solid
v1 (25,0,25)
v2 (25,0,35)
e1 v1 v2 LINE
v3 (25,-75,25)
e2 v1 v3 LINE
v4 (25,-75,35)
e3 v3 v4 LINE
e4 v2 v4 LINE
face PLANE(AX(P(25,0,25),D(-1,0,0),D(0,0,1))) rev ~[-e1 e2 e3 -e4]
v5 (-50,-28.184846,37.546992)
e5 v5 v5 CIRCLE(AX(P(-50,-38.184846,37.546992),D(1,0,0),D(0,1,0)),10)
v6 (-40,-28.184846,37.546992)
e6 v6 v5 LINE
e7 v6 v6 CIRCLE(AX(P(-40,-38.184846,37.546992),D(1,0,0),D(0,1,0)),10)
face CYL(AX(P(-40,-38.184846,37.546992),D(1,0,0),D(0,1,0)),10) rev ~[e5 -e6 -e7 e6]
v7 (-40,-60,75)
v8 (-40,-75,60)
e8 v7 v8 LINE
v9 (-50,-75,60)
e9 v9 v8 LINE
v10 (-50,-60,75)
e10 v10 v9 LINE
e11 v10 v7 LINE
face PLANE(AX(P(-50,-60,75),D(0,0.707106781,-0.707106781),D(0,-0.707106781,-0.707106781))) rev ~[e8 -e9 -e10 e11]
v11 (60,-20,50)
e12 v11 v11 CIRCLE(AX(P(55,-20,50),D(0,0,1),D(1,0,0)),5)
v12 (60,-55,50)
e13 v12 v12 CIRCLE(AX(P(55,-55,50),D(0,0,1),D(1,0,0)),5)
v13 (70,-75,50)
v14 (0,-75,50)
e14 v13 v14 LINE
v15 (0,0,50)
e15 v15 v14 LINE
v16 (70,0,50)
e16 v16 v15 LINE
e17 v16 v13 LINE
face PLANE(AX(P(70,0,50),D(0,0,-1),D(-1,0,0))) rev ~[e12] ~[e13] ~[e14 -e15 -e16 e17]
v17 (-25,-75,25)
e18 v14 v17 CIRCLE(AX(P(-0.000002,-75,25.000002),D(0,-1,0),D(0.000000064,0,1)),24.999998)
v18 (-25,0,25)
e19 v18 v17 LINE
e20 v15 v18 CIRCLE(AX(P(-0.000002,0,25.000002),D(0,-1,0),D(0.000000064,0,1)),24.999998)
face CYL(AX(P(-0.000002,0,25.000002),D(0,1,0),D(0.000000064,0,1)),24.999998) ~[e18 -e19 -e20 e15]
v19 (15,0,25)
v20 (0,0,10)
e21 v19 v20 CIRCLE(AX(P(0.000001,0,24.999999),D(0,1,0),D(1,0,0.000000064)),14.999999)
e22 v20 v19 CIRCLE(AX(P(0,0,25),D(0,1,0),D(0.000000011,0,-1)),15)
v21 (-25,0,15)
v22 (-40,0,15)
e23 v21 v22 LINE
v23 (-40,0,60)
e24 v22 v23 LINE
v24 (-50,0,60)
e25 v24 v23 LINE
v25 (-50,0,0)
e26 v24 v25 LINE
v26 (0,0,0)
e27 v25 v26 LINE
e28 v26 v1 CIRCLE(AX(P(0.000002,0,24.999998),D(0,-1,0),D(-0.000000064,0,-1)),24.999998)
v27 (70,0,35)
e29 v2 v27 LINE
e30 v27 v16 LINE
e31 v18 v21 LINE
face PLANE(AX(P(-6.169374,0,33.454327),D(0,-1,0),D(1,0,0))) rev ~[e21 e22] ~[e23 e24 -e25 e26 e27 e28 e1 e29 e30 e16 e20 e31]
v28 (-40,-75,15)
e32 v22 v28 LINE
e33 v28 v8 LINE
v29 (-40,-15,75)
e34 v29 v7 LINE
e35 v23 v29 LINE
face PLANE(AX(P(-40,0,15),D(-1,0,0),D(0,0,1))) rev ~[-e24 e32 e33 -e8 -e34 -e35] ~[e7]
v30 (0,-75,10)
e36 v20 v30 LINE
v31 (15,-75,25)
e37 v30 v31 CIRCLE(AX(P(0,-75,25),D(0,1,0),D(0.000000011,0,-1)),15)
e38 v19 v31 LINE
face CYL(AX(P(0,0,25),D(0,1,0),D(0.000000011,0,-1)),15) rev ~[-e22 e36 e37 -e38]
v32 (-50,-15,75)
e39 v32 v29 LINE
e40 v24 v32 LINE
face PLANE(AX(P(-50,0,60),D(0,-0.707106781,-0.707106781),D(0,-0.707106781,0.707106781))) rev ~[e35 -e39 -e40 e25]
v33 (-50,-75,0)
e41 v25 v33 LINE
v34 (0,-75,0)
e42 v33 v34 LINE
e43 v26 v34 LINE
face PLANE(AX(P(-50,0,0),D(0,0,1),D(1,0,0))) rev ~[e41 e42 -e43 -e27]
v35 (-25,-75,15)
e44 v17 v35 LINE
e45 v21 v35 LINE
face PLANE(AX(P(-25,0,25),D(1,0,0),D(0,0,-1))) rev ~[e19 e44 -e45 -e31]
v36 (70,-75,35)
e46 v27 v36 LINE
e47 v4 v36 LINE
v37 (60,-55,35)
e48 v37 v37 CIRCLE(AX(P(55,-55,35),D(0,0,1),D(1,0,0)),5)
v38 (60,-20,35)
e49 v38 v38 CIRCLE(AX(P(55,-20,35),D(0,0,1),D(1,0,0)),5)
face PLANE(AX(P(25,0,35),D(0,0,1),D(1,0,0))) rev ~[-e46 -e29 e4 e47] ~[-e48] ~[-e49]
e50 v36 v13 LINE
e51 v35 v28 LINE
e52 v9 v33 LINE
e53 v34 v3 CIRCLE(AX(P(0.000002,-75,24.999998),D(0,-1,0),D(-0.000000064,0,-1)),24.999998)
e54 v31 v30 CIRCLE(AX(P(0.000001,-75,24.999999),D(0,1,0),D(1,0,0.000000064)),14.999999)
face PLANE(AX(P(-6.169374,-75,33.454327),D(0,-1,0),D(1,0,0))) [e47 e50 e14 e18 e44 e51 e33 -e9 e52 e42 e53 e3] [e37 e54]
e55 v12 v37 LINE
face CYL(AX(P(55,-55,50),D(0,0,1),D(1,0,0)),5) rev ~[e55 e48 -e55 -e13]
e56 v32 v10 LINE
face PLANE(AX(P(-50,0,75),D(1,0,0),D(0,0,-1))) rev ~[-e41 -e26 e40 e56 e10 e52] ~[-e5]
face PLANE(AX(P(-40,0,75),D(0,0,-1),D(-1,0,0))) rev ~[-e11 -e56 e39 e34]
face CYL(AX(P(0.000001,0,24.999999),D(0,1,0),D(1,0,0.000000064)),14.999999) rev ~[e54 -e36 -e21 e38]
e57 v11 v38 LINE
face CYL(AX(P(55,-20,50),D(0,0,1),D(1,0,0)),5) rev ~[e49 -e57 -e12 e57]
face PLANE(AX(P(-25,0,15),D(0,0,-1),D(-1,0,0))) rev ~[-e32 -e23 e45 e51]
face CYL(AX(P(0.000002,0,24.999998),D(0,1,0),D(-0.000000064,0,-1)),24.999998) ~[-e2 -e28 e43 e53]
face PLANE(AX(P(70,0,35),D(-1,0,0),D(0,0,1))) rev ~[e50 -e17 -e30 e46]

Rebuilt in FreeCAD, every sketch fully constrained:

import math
import FreeCAD as App
import Part
import Sketcher


def add_polygon(sketch, points):
    """Adds a closed chain of lines whose ends are joined by coincident constraints."""
    first, n = sketch.GeometryCount, len(points)
    for a, b in zip(points, points[1:] + points[:1]):
        sketch.addGeometry(Part.LineSegment(App.Vector(*a, 0), App.Vector(*b, 0)), False)
    for i in range(n):
        sketch.addConstraint(Sketcher.Constraint("Coincident", first + i, 2, first + (i + 1) % n, 1))

doc = App.newDocument("Part")
body = doc.addObject("PartDesign::Body", "Body")

# Sketch on XZ plane
sketch1 = body.newObject("Sketcher::SketchObject", "Sketch")
sketch1.AttachmentSupport = (doc.getObject("XZ_Plane"), [""])
sketch1.MapMode = "FlatFace"
sketch1.addGeometry(Part.LineSegment(App.Vector(-50, 0, 0), App.Vector(0, 0, 0)), False)
sketch1.addGeometry(Part.ArcOfCircle(Part.Circle(App.Vector(0, 25, 0), App.Vector(0, 0, 1), 25), math.radians(-90), math.radians(0)), False)
sketch1.addGeometry(Part.LineSegment(App.Vector(25, 25, 0), App.Vector(25, 35, 0)), False)
sketch1.addGeometry(Part.LineSegment(App.Vector(25, 35, 0), App.Vector(70, 35, 0)), False)
sketch1.addGeometry(Part.LineSegment(App.Vector(70, 35, 0), App.Vector(70, 50, 0)), False)
sketch1.addGeometry(Part.LineSegment(App.Vector(70, 50, 0), App.Vector(0, 50, 0)), False)
sketch1.addGeometry(Part.ArcOfCircle(Part.Circle(App.Vector(0, 25, 0), App.Vector(0, 0, 1), 25), math.radians(90), math.radians(180)), False)
sketch1.addGeometry(Part.LineSegment(App.Vector(-25, 25, 0), App.Vector(-25, 15, 0)), False)
sketch1.addGeometry(Part.LineSegment(App.Vector(-25, 15, 0), App.Vector(-40, 15, 0)), False)
sketch1.addGeometry(Part.LineSegment(App.Vector(-40, 15, 0), App.Vector(-40, 75, 0)), False)
sketch1.addGeometry(Part.LineSegment(App.Vector(-40, 75, 0), App.Vector(-50, 75, 0)), False)
sketch1.addGeometry(Part.LineSegment(App.Vector(-50, 75, 0), App.Vector(-50, 0, 0)), False)
sketch1.addGeometry(Part.ArcOfCircle(Part.Circle(App.Vector(0, 25, 0), App.Vector(0, 0, 1), 15), math.radians(-90), math.radians(0)), False)
sketch1.addGeometry(Part.ArcOfCircle(Part.Circle(App.Vector(0, 25, 0), App.Vector(0, 0, 1), 15), math.radians(0), math.radians(270)), False)
sketch1.addConstraint(Sketcher.Constraint("Tangent", 0, 2, 1, 1))
sketch1.addConstraint(Sketcher.Constraint("Tangent", 1, 2, 2, 1))
sketch1.addConstraint(Sketcher.Constraint("Coincident", 2, 2, 3, 1))
sketch1.addConstraint(Sketcher.Constraint("Coincident", 3, 2, 4, 1))
sketch1.addConstraint(Sketcher.Constraint("Coincident", 4, 2, 5, 1))
sketch1.addConstraint(Sketcher.Constraint("Tangent", 5, 2, 6, 1))
sketch1.addConstraint(Sketcher.Constraint("Tangent", 6, 2, 7, 1))
sketch1.addConstraint(Sketcher.Constraint("Coincident", 7, 2, 8, 1))
sketch1.addConstraint(Sketcher.Constraint("Coincident", 8, 2, 9, 1))
sketch1.addConstraint(Sketcher.Constraint("Coincident", 9, 2, 10, 1))
sketch1.addConstraint(Sketcher.Constraint("Coincident", 10, 2, 11, 1))
sketch1.addConstraint(Sketcher.Constraint("Coincident", 11, 2, 0, 1))
sketch1.addConstraint(Sketcher.Constraint("Tangent", 12, 1, 13, 2))
sketch1.addConstraint(Sketcher.Constraint("Coincident", 13, 1, 12, 2))
sketch1.addConstraint(Sketcher.Constraint("Horizontal", 0))
sketch1.addConstraint(Sketcher.Constraint("Vertical", 2))
sketch1.addConstraint(Sketcher.Constraint("Horizontal", 3))
sketch1.addConstraint(Sketcher.Constraint("Vertical", 4))
sketch1.addConstraint(Sketcher.Constraint("Horizontal", 5))
sketch1.addConstraint(Sketcher.Constraint("Vertical", 7))
sketch1.addConstraint(Sketcher.Constraint("Horizontal", 8))
sketch1.addConstraint(Sketcher.Constraint("Vertical", 9))
sketch1.addConstraint(Sketcher.Constraint("Horizontal", 10))
sketch1.addConstraint(Sketcher.Constraint("Vertical", 11))
sketch1.addConstraint(Sketcher.Constraint("Coincident", 0, 2, -1, 1))
sketch1.addConstraint(Sketcher.Constraint("Coincident", 6, 3, 1, 3))
sketch1.addConstraint(Sketcher.Constraint("Coincident", 12, 3, 1, 3))
sketch1.addConstraint(Sketcher.Constraint("Equal", 1, 6))
sketch1.addConstraint(Sketcher.Constraint("PointOnObject", 12, 1, -2))
sketch1.addConstraint(Sketcher.Constraint("Horizontal", 6, 2, 13, 1))
sketch1.addConstraint(Sketcher.Constraint("Equal", 10, 2))
sketch1.addConstraint(Sketcher.Constraint("Equal", 8, 4))
sketch1.addConstraint(Sketcher.Constraint("Equal", 2, 7))
sketch1.addConstraint(Sketcher.Constraint("Radius", 1, 24.999998))
sketch1.addConstraint(Sketcher.Constraint("Radius", 12, 14.999999))
sketch1.addConstraint(Sketcher.Constraint("DistanceX", 3, 1, 3, 2, 45.0))
sketch1.addConstraint(Sketcher.Constraint("DistanceX", 8, 2, 8, 1, 15.0))
sketch1.addConstraint(Sketcher.Constraint("DistanceY", 9, 1, 9, 2, 60.0))
pad1 = body.newObject("PartDesign::Pad", "Pad")
pad1.Profile = sketch1
pad1.Length = 75

# Sketch on XY plane
sketch2 = body.newObject("Sketcher::SketchObject", "Sketch001")
sketch2.AttachmentSupport = (doc.getObject("XY_Plane"), [""])
sketch2.MapMode = "FlatFace"
sketch2.AttachmentOffset = App.Placement(App.Vector(0, 0, 50), App.Rotation())
sketch2.addGeometry(Part.Circle(App.Vector(55, -20, 0), App.Vector(0, 0, 1), 5), False)
sketch2.addGeometry(Part.Circle(App.Vector(55, -55, 0), App.Vector(0, 0, 1), 5), False)
sketch2.addConstraint(Sketcher.Constraint("Equal", 0, 1))
sketch2.addConstraint(Sketcher.Constraint("Vertical", 0, 3, 1, 3))
sketch2.addConstraint(Sketcher.Constraint("Diameter", 0, 10.0))
sketch2.addConstraint(Sketcher.Constraint("DistanceX", -1, 1, 0, 3, 55.0))
sketch2.addConstraint(Sketcher.Constraint("DistanceY", 0, 3, -1, 1, 20.0))
sketch2.addConstraint(Sketcher.Constraint("DistanceY", 1, 3, -1, 1, 55.0))
pocket1 = body.newObject("PartDesign::Pocket", "Pocket")
pocket1.Profile = sketch2
pocket1.Length = 25

# Sketch on YZ plane
sketch3 = body.newObject("Sketcher::SketchObject", "Sketch002")
sketch3.AttachmentSupport = (doc.getObject("YZ_Plane"), [""])
sketch3.MapMode = "FlatFace"
sketch3.AttachmentOffset = App.Placement(App.Vector(0, 0, -50), App.Rotation())
add_polygon(sketch3, [(0, 60), (-15, 75), (0, 75)])  # lines 0-2
add_polygon(sketch3, [(-75, 75), (-60, 75), (-75, 60)])  # lines 3-5
sketch3.addConstraint(Sketcher.Constraint("Horizontal", 1))
sketch3.addConstraint(Sketcher.Constraint("Vertical", 2))
sketch3.addConstraint(Sketcher.Constraint("Horizontal", 3))
sketch3.addConstraint(Sketcher.Constraint("Vertical", 5))
sketch3.addConstraint(Sketcher.Constraint("PointOnObject", 1, 2, -2))
sketch3.addConstraint(Sketcher.Constraint("Perpendicular", 0, 4))
sketch3.addConstraint(Sketcher.Constraint("Horizontal", 1, 2, 3, 2))
sketch3.addConstraint(Sketcher.Constraint("Horizontal", 2, 2, 4, 2))
sketch3.addConstraint(Sketcher.Constraint("Equal", 1, 3))
sketch3.addConstraint(Sketcher.Constraint("DistanceX", 1, 1, 1, 2, 15.0))
sketch3.addConstraint(Sketcher.Constraint("DistanceY", -1, 1, 0, 2, 75.0))
sketch3.addConstraint(Sketcher.Constraint("DistanceX", 3, 2, -1, 1, 60.0))
pocket2 = body.newObject("PartDesign::Pocket", "Pocket001")
pocket2.Profile = sketch3
pocket2.Length = 25
pocket2.Reversed = True

# Sketch on YZ plane
sketch4 = body.newObject("Sketcher::SketchObject", "Sketch003")
sketch4.AttachmentSupport = (doc.getObject("YZ_Plane"), [""])
sketch4.MapMode = "FlatFace"
sketch4.AttachmentOffset = App.Placement(App.Vector(0, 0, -40), App.Rotation())
sketch4.addGeometry(Part.Circle(App.Vector(-38, 38, 0), App.Vector(0, 0, 1), 10), False)
sketch4.addConstraint(Sketcher.Constraint("Diameter", 0, 20.0))
sketch4.addConstraint(Sketcher.Constraint("DistanceX", 0, 3, -1, 1, 38.184846))
sketch4.addConstraint(Sketcher.Constraint("DistanceY", -1, 1, 0, 3, 37.546992))
pocket3 = body.newObject("PartDesign::Pocket", "Pocket002")
pocket3.Profile = sketch4
pocket3.Length = 10

doc.recompute()
